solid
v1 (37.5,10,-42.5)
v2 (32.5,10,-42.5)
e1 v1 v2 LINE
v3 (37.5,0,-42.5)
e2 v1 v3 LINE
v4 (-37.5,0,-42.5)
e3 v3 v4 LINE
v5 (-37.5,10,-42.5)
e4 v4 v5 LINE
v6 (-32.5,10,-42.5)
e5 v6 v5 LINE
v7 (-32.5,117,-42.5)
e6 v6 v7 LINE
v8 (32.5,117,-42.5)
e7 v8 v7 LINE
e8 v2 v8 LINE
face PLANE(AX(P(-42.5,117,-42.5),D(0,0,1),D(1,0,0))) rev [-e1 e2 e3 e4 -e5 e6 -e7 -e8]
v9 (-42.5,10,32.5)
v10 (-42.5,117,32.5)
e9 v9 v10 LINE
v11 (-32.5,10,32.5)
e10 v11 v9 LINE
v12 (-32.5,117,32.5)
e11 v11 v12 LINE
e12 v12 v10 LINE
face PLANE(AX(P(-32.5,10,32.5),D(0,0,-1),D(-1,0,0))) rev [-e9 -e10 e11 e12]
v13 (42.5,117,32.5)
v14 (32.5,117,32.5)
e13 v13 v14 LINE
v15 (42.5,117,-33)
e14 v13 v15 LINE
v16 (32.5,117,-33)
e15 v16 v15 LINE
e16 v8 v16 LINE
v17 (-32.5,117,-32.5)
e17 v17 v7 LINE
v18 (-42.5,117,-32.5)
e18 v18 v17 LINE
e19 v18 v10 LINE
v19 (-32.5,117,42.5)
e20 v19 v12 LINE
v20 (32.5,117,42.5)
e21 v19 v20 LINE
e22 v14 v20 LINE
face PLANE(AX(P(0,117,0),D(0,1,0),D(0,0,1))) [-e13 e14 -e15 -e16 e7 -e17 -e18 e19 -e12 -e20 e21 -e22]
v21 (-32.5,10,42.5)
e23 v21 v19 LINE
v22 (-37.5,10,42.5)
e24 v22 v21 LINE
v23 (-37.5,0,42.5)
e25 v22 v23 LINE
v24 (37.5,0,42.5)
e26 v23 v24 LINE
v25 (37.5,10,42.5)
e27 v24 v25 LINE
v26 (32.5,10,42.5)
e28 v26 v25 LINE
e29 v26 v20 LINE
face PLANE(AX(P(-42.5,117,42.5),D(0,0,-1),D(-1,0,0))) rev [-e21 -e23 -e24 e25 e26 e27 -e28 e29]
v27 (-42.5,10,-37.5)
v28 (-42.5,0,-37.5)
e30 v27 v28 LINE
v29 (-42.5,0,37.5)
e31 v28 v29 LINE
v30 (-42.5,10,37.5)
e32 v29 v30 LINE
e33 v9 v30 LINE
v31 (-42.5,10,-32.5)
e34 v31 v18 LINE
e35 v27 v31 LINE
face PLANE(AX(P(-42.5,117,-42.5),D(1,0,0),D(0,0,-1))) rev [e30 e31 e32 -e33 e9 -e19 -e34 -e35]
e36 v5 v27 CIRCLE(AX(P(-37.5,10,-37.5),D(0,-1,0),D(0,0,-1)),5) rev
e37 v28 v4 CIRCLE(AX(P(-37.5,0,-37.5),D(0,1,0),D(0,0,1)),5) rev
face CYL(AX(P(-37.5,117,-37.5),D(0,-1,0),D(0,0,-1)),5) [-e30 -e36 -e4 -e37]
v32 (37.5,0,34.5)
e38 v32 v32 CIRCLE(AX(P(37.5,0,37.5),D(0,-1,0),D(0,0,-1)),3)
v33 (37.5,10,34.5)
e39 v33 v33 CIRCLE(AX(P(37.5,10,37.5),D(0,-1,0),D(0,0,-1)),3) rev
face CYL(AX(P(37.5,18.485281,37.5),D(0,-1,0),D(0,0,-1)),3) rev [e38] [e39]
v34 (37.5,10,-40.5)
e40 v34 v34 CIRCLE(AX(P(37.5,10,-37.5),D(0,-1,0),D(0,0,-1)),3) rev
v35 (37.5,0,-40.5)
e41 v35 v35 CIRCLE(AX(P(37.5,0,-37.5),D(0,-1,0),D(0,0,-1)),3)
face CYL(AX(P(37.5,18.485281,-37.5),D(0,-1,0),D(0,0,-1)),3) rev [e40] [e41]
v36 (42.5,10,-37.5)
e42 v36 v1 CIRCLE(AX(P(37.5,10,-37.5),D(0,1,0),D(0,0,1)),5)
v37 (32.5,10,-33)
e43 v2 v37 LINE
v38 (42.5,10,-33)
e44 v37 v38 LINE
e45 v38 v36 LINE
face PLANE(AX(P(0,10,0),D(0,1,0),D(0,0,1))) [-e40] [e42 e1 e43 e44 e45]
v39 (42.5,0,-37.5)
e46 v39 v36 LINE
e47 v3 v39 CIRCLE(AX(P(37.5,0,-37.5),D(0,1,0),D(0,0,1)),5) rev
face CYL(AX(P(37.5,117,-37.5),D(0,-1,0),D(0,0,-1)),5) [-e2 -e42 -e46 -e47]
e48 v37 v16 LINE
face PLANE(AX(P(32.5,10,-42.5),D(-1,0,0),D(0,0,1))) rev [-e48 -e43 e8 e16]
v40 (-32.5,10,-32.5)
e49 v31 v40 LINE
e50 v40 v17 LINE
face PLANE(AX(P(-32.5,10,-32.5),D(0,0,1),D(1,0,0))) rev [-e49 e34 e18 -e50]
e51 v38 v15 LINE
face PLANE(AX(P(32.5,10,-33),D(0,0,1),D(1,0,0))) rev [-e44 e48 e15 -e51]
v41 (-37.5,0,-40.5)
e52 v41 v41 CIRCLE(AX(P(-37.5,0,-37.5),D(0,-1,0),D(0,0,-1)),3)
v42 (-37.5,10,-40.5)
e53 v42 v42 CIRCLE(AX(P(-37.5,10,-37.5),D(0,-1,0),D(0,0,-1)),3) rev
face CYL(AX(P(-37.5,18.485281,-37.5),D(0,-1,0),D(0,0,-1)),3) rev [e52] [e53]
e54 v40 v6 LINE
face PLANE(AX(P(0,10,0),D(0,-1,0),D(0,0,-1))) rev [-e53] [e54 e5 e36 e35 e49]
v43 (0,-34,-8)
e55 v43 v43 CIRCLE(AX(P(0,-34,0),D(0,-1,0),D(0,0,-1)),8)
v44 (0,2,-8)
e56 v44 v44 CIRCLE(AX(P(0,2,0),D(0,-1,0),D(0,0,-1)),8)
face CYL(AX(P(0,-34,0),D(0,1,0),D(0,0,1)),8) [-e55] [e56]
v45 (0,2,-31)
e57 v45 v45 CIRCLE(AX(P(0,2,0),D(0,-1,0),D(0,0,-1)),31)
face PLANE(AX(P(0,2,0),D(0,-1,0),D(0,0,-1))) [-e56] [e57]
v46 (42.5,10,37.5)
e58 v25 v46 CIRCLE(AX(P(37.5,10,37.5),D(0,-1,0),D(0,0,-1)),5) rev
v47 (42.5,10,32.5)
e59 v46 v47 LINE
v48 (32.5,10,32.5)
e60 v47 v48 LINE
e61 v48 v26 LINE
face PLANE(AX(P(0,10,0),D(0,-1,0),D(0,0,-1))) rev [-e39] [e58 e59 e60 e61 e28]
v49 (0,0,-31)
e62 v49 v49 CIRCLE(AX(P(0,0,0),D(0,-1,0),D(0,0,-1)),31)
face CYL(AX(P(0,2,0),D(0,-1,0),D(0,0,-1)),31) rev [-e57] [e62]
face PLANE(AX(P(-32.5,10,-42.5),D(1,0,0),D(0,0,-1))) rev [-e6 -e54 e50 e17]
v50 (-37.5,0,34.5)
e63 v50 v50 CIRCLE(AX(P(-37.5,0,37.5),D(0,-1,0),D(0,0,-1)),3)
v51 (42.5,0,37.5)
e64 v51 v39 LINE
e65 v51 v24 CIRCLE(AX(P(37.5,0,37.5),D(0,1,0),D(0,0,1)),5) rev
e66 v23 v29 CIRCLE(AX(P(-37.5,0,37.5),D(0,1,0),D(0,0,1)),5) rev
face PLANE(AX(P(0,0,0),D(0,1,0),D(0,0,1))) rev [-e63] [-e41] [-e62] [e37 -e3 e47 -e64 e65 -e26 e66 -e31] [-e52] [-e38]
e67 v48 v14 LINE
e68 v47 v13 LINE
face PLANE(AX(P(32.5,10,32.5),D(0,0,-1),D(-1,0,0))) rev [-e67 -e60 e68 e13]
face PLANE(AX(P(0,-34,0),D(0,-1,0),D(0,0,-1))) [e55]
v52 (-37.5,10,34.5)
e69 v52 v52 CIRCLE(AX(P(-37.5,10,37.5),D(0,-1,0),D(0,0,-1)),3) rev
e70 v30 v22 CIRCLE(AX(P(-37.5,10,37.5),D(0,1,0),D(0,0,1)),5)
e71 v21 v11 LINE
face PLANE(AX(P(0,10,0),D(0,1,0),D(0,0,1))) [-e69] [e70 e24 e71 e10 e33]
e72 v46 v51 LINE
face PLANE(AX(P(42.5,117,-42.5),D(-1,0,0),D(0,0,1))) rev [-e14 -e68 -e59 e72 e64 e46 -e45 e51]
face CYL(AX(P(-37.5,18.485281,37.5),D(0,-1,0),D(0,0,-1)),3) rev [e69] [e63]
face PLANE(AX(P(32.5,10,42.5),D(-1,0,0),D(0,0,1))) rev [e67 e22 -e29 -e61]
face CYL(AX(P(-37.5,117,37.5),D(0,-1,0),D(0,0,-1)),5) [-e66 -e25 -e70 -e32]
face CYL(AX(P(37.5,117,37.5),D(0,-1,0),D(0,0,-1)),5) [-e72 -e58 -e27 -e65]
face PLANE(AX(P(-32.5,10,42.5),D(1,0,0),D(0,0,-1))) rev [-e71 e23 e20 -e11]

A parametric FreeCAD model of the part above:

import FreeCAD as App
import Part
import Sketcher
from FreeCAD import Vector
Q = App.Units.Quantity


def edges_at(feature, points):
    """Names of the edges that pass closest to the given points."""
    edges = feature.Shape.Edges
    near = lambda p: min(range(len(edges)), key=lambda i: edges[i].distToShape(Part.Vertex(*p))[0])
    return sorted({f"Edge{near(p) + 1}" for p in points})

doc = App.newDocument("Part")
body = doc.addObject("PartDesign::Body", "Body")

# Sketch on XZ plane
sketch1 = doc.addObject("Sketcher::SketchObject", "Sketch")
body.addObject(sketch1)
sketch1.AttachmentSupport = (doc.XZ_Plane, [""])
sketch1.MapMode = "FlatFace"
sketch1.addGeometry([
    Part.LineSegment(Vector(-42, -42, 0), Vector(-42, 42, 0)),
    Part.LineSegment(Vector(-42, 42, 0), Vector(42, 42, 0)),
    Part.LineSegment(Vector(42, 42, 0), Vector(42, -42, 0)),
    Part.LineSegment(Vector(42, -42, 0), Vector(-42, -42, 0)),
], False)
sketch1.addConstraint([
    Sketcher.Constraint("Coincident", 0, 2, 1, 1),
    Sketcher.Constraint("Coincident", 1, 2, 2, 1),
    Sketcher.Constraint("Coincident", 2, 2, 3, 1),
    Sketcher.Constraint("Coincident", 3, 2, 0, 1),
    Sketcher.Constraint("Vertical", 0),
    Sketcher.Constraint("Horizontal", 1),
    Sketcher.Constraint("Vertical", 2),
    Sketcher.Constraint("Horizontal", 3),
    Sketcher.Constraint("Symmetric", 0, 2, 2, 2, -1, 1),
    Sketcher.Constraint("Equal", 3, 0),
    Sketcher.Constraint("DistanceX", 1, 1, 1, 2, Q("85 mm")),
])
pad1 = doc.addObject("PartDesign::Pad", "Pad")
body.addObject(pad1)
pad1.Profile = sketch1
pad1.Length = 117
pad1.Reversed = True

# Sketch on XZ plane
sketch2 = doc.addObject("Sketcher::SketchObject", "Sketch001")
body.addObject(sketch2)
sketch2.AttachmentSupport = (doc.XZ_Plane, [""])
sketch2.MapMode = "FlatFace"
sketch2.AttachmentOffset = App.Placement(Vector(0, 0, -127), App.Rotation())
sketch2.addGeometry([
    Part.LineSegment(Vector(-42, -42, 0), Vector(-42, -32, 0)),  # 0
    Part.LineSegment(Vector(-42, -32, 0), Vector(-32, -32, 0)),  # 1
    Part.LineSegment(Vector(-32, -32, 0), Vector(-32, -42, 0)),  # 2
    Part.LineSegment(Vector(-32, -42, 0), Vector(-42, -42, 0)),  # 3
    Part.LineSegment(Vector(32, -42, 0), Vector(32, -33, 0)),  # 4
    Part.LineSegment(Vector(32, -33, 0), Vector(42, -33, 0)),  # 5
    Part.LineSegment(Vector(42, -33, 0), Vector(42, -42, 0)),  # 6
    Part.LineSegment(Vector(42, -42, 0), Vector(32, -42, 0)),  # 7
    Part.LineSegment(Vector(-42, 32, 0), Vector(-42, 42, 0)),  # 8
    Part.LineSegment(Vector(-42, 42, 0), Vector(-32, 42, 0)),  # 9
    Part.LineSegment(Vector(-32, 42, 0), Vector(-32, 32, 0)),  # 10
    Part.LineSegment(Vector(-32, 32, 0), Vector(-42, 32, 0)),  # 11
    Part.LineSegment(Vector(32, 32, 0), Vector(32, 42, 0)),  # 12
    Part.LineSegment(Vector(32, 42, 0), Vector(42, 42, 0)),  # 13
    Part.LineSegment(Vector(42, 42, 0), Vector(42, 32, 0)),  # 14
    Part.LineSegment(Vector(42, 32, 0), Vector(32, 32, 0)),  # 15
], False)
sketch2.addConstraint([
    Sketcher.Constraint("Coincident", 0, 2, 1, 1),
    Sketcher.Constraint("Coincident", 1, 2, 2, 1),
    Sketcher.Constraint("Coincident", 2, 2, 3, 1),
    Sketcher.Constraint("Coincident", 3, 2, 0, 1),
    Sketcher.Constraint("Coincident", 4, 2, 5, 1),
    Sketcher.Constraint("Coincident", 5, 2, 6, 1),
    Sketcher.Constraint("Coincident", 6, 2, 7, 1),
    Sketcher.Constraint("Coincident", 7, 2, 4, 1),
    Sketcher.Constraint("Coincident", 8, 2, 9, 1),
    Sketcher.Constraint("Coincident", 9, 2, 10, 1),
    Sketcher.Constraint("Coincident", 10, 2, 11, 1),
    Sketcher.Constraint("Coincident", 11, 2, 8, 1),
    Sketcher.Constraint("Coincident", 12, 2, 13, 1),
    Sketcher.Constraint("Coincident", 13, 2, 14, 1),
    Sketcher.Constraint("Coincident", 14, 2, 15, 1),
    Sketcher.Constraint("Coincident", 15, 2, 12, 1),
    Sketcher.Constraint("Vertical", 0),
    Sketcher.Constraint("Horizontal", 1),
    Sketcher.Constraint("Vertical", 2),
    Sketcher.Constraint("Horizontal", 3),
    Sketcher.Constraint("Vertical", 4),
    Sketcher.Constraint("Horizontal", 5),
    Sketcher.Constraint("Vertical", 6),
    Sketcher.Constraint("Horizontal", 7),
    Sketcher.Constraint("Vertical", 8),
    Sketcher.Constraint("Horizontal", 9),
    Sketcher.Constraint("Vertical", 10),
    Sketcher.Constraint("Horizontal", 11),
    Sketcher.Constraint("Vertical", 12),
    Sketcher.Constraint("Horizontal", 13),
    Sketcher.Constraint("Vertical", 14),
    Sketcher.Constraint("Horizontal", 15),
    Sketcher.Constraint("Symmetric", 6, 2, 8, 2, -1, 1),
    Sketcher.Constraint("Symmetric", 2, 2, 12, 2, -1, 1),
    Sketcher.Constraint("Symmetric", 0, 2, 14, 2, -1, 1),
    Sketcher.Constraint("Symmetric", 3, 2, 6, 2, -2),
    Sketcher.Constraint("Symmetric", 10, 2, 15, 2, -2),
    Sketcher.Constraint("Vertical", 7, 2, 12, 2),
    Sketcher.Constraint("Equal", 15, 0),
    Sketcher.Constraint("DistanceX", 1, 1, 1, 2, Q("10 mm")),
    Sketcher.Constraint("DistanceY", 4, 1, 4, 2, Q("9.5 mm")),
    Sketcher.Constraint("DistanceY", 4, 2, -1, 1, Q("33 mm")),
    Sketcher.Constraint("DistanceX", 1, 2, 4, 2, Q("65 mm")),
])
pocket1 = doc.addObject("PartDesign::Pocket", "Pocket")
body.addObject(pocket1)
pocket1.Profile = sketch2
pocket1.Length = 117
pocket1.Reversed = True

# Sketch on XZ plane
sketch3 = doc.addObject("Sketcher::SketchObject", "Sketch002")
body.addObject(sketch3)
sketch3.AttachmentSupport = (doc.XZ_Plane, [""])
sketch3.MapMode = "FlatFace"
sketch3.addGeometry(Part.Circle(Vector(0, 0, 0), Vector(0, 0, 1), 31), False)
sketch3.addConstraint([
    Sketcher.Constraint("Coincident", 0, 3, -1, 1),
    Sketcher.Constraint("Diameter", 0, Q("62 mm")),
])
pocket2 = doc.addObject("PartDesign::Pocket", "Pocket001")
body.addObject(pocket2)
pocket2.Profile = sketch3
pocket2.Length = 2

# Sketch on XZ plane
sketch4 = doc.addObject("Sketcher::SketchObject", "Sketch003")
body.addObject(sketch4)
sketch4.AttachmentSupport = (doc.XZ_Plane, [""])
sketch4.MapMode = "FlatFace"
sketch4.AttachmentOffset = App.Placement(Vector(0, 0, -2), App.Rotation())
sketch4.addGeometry(Part.Circle(Vector(0, 0, 0), Vector(0, 0, 1), 8), False)
sketch4.addConstraint([
    Sketcher.Constraint("Coincident", 0, 3, -1, 1),
    Sketcher.Constraint("Diameter", 0, Q("16 mm")),
])
pad2 = doc.addObject("PartDesign::Pad", "Pad001")
body.addObject(pad2)
pad2.Profile = sketch4
pad2.Length = 36

# Sketch on XZ plane
sketch5 = doc.addObject("Sketcher::SketchObject", "Sketch004")
body.addObject(sketch5)
sketch5.AttachmentSupport = (doc.XZ_Plane, [""])
sketch5.MapMode = "FlatFace"
sketch5.addGeometry([
    Part.Circle(Vector(37.5, -37.5, 0), Vector(0, 0, 1), 3),
    Part.Circle(Vector(-37.5, -37.5, 0), Vector(0, 0, 1), 3),
    Part.Circle(Vector(-37.5, 37.5, 0), Vector(0, 0, 1), 3),
    Part.Circle(Vector(37.5, 37.5, 0), Vector(0, 0, 1), 3),
], False)
sketch5.addConstraint([
    Sketcher.Constraint("Equal", 0, 1),
    Sketcher.Constraint("Equal", 1, 2),
    Sketcher.Constraint("Equal", 2, 3),
    Sketcher.Constraint("Symmetric", 0, 3, 2, 3, -1, 1),
    Sketcher.Constraint("Symmetric", 1, 3, 3, 3, -1, 1),
    Sketcher.Constraint("Symmetric", 0, 3, 1, 3, -2),
    Sketcher.Constraint("Diameter", 0, Q("6 mm")),
    Sketcher.Constraint("DistanceX", 1, 3, 0, 3, Q("75 mm")),
    Sketcher.Constraint("DistanceY", 1, 3, 2, 3, Q("75 mm")),
])
pocket3 = doc.addObject("PartDesign::Pocket", "Pocket002")
body.addObject(pocket3)
pocket3.Profile = sketch5
pocket3.Length = 10
doc.recompute()

fillet = doc.addObject("PartDesign::Fillet", "Fillet")
body.addObject(fillet)
fillet.Base = (pocket3, edges_at(pocket3, [
    (42.5, 5, 42.5),
    (-42.5, 5, 42.5),
    (-42.5, 5, -42.5),
    (42.5, 5, -42.5),
]))
fillet.Radius = 5

doc.recompute()
